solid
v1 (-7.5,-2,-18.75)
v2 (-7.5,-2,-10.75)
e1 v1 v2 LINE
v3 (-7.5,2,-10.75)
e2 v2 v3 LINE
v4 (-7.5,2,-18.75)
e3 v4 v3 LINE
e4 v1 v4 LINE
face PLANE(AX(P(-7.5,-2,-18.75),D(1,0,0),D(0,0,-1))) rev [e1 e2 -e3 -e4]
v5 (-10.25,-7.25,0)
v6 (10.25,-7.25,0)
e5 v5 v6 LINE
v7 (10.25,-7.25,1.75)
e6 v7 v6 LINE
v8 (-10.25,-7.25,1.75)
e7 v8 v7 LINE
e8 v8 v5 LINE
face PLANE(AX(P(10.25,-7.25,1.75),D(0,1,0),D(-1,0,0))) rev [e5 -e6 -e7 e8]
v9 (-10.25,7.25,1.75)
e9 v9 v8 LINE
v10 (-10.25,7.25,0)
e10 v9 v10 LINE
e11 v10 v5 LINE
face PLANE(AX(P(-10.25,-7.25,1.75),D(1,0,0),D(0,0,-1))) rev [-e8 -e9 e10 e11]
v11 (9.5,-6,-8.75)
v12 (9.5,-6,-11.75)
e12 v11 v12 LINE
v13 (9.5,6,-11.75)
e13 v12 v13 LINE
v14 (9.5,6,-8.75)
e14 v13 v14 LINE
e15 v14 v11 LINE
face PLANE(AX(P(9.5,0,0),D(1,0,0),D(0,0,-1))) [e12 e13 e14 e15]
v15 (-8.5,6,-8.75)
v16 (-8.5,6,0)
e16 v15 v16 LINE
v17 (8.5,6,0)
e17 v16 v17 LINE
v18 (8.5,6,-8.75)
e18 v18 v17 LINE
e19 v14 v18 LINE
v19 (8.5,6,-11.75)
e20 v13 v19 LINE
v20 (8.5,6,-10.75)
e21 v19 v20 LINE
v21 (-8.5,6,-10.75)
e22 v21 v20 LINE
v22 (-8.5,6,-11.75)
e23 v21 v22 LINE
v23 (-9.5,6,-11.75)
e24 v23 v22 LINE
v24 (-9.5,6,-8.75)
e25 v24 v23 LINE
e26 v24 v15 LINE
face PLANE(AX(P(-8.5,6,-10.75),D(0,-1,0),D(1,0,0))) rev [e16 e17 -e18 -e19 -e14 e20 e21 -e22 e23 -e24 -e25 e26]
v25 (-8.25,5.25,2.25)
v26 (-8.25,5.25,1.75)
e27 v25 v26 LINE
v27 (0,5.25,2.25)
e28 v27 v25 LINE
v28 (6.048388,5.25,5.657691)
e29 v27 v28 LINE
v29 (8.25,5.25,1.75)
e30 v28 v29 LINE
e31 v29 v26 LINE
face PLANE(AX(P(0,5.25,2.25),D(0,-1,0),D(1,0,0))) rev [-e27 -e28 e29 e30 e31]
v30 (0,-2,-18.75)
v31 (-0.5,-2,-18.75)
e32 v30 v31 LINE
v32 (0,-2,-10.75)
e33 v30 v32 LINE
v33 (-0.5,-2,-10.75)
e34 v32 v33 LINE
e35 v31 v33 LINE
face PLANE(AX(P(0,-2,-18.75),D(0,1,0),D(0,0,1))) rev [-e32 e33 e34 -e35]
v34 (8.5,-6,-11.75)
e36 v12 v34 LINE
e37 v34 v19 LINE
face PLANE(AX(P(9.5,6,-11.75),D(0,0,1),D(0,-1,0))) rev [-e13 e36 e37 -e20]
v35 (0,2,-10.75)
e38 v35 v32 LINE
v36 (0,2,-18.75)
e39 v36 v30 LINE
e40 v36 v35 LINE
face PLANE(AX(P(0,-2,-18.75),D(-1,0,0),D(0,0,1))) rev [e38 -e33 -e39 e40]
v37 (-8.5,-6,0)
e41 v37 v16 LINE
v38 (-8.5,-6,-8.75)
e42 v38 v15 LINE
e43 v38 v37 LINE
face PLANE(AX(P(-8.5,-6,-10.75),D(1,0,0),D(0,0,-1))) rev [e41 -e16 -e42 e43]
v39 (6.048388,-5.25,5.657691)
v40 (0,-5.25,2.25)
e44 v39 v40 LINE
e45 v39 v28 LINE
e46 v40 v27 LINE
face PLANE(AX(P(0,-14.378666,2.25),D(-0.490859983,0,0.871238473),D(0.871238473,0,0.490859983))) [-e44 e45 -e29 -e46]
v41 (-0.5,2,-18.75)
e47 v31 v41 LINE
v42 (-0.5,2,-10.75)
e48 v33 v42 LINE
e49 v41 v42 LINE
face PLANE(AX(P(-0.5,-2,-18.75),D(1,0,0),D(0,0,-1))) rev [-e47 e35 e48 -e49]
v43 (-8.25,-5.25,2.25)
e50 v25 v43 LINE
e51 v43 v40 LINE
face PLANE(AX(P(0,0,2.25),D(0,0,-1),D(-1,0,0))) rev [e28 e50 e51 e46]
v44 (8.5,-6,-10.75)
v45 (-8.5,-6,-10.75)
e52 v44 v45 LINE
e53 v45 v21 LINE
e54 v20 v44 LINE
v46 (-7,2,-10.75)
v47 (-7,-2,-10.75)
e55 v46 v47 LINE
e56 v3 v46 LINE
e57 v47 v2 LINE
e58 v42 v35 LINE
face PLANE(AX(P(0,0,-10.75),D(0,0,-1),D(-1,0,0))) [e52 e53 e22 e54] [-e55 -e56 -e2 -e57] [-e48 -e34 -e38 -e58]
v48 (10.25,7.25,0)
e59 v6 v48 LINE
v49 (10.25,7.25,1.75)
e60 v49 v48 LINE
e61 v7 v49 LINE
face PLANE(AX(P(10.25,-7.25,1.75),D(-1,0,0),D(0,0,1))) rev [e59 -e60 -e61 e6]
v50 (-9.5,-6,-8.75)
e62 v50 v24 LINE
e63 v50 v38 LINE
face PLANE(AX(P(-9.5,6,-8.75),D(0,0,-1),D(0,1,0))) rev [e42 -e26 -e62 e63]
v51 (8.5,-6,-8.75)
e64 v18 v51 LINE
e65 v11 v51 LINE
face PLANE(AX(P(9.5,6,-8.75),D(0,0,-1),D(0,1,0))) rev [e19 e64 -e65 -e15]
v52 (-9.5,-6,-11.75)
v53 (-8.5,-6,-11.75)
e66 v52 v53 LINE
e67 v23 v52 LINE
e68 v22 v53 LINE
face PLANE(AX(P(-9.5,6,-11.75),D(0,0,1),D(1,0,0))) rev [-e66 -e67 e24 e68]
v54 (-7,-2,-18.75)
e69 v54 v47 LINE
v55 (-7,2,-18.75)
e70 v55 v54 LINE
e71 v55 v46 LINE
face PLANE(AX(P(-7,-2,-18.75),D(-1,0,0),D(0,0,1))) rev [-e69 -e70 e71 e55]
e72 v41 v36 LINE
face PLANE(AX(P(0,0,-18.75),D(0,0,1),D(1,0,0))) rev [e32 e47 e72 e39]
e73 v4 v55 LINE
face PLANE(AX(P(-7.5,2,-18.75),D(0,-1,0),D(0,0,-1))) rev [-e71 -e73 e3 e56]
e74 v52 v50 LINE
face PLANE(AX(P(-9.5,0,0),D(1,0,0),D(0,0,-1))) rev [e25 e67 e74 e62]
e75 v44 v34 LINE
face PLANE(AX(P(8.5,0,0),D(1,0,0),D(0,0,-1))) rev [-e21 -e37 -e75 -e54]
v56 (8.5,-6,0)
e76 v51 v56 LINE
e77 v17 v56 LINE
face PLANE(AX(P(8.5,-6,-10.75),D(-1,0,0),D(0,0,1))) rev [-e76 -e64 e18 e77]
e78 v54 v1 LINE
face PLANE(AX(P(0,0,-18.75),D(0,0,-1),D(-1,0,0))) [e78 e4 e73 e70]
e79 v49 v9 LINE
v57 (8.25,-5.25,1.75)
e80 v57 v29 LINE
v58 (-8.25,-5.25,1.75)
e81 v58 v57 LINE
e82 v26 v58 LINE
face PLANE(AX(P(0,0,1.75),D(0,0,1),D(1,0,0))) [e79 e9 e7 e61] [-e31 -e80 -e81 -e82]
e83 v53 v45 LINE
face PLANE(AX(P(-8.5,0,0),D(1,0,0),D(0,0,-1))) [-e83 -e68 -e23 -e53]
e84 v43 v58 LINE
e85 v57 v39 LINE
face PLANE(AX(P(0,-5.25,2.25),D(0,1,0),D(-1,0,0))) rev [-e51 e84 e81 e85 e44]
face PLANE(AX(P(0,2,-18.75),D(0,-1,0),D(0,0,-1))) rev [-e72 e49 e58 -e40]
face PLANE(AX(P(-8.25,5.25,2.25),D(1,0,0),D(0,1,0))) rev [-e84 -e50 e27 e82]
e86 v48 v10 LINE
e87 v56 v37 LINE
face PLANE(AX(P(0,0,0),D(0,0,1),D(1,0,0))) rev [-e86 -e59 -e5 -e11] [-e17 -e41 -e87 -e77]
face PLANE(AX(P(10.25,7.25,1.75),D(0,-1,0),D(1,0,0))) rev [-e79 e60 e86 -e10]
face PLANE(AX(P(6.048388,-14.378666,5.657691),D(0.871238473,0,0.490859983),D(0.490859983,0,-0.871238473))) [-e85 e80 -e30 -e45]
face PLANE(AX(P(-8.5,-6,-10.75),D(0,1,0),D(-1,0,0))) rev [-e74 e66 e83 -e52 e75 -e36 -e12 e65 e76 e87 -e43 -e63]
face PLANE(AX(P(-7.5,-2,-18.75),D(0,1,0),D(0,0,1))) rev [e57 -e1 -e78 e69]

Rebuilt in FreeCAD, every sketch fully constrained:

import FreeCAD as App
import Part
import Sketcher

V = App.Vector
Q = App.Units.Quantity


def add_polygon(sketch, points):
    """Adds a closed chain of lines whose ends are joined by coincident constraints."""
    first, n = sketch.GeometryCount, len(points)
    for a, b in zip(points, points[1:] + points[:1]):
        sketch.addGeometry(Part.LineSegment(App.Vector(*a, 0), App.Vector(*b, 0)), False)
    for i in range(n):
        sketch.addConstraint(Sketcher.Constraint("Coincident", first + i, 2, first + (i + 1) % n, 1))

doc = App.newDocument("Part")
body = doc.addObject("PartDesign::Body", "Body")

# Sketch on XY plane
sketch1 = body.newObject("Sketcher::SketchObject", "Sketch")
sketch1.AttachmentSupport = (doc.getObject("XY_Plane"), [""])
sketch1.MapMode = "FlatFace"
add_polygon(sketch1, [(-10, 7), (-10, -7), (10, -7), (10, 7)])  # lines 0-3
sketch1.addConstraint([
    Sketcher.Constraint("Vertical", 0),
    Sketcher.Constraint("Horizontal", 1),
    Sketcher.Constraint("Vertical", 2),
    Sketcher.Constraint("Horizontal", 3),
    Sketcher.Constraint("Symmetric", 0, 2, 2, 2, -1, 1),
    Sketcher.Constraint("DistanceX", 1, 1, 1, 2, Q("20.5 mm")),
    Sketcher.Constraint("DistanceY", 0, 2, 0, 1, Q("14.5 mm")),
])
pad1 = body.newObject("PartDesign::Pad", "Pad")
pad1.Profile = sketch1
pad1.Length = 1.75

# Sketch on XY plane
sketch2 = body.newObject("Sketcher::SketchObject", "Sketch001")
sketch2.AttachmentSupport = (doc.getObject("XY_Plane"), [""])
sketch2.MapMode = "FlatFace"
add_polygon(sketch2, [(8, 6), (8, -6), (-8, -6), (-8, 6)])  # lines 0-3
sketch2.addConstraint([
    Sketcher.Constraint("Vertical", 0),
    Sketcher.Constraint("Horizontal", 1),
    Sketcher.Constraint("Vertical", 2),
    Sketcher.Constraint("Horizontal", 3),
    Sketcher.Constraint("Symmetric", 0, 2, 2, 2, -1, 1),
    Sketcher.Constraint("DistanceX", 1, 2, 1, 1, Q("17 mm")),
    Sketcher.Constraint("DistanceY", 0, 2, 0, 1, Q("12 mm")),
])
pad2 = body.newObject("PartDesign::Pad", "Pad001")
pad2.Profile = sketch2
pad2.Length = 10.75
pad2.Reversed = True

# Sketch on YZ plane
sketch3 = body.newObject("Sketcher::SketchObject", "Sketch002")
sketch3.AttachmentSupport = (doc.getObject("YZ_Plane"), [""])
sketch3.MapMode = "FlatFace"
sketch3.AttachmentOffset = App.Placement(V(0, 0, 8.5), App.Rotation())
add_polygon(sketch3, [(6, -8.8), (-6, -8.8), (-6, -11.8), (6, -11.8)])  # lines 0-3
sketch3.addConstraint([
    Sketcher.Constraint("Horizontal", 0),
    Sketcher.Constraint("Vertical", 1),
    Sketcher.Constraint("Horizontal", 2),
    Sketcher.Constraint("Vertical", 3),
    Sketcher.Constraint("DistanceX", 0, 2, 0, 1, Q("12 mm")),
    Sketcher.Constraint("DistanceY", 1, 2, 1, 1, Q("3 mm")),
    Sketcher.Constraint("DistanceX", 0, 2, -1, 1, Q("6 mm")),
    Sketcher.Constraint("DistanceY", 0, 2, -1, 1, Q("8.75 mm")),
])
pad3 = body.newObject("PartDesign::Pad", "Pad002")
pad3.Profile = sketch3
pad3.Length = 1

# Sketch on YZ plane
sketch4 = body.newObject("Sketcher::SketchObject", "Sketch003")
sketch4.AttachmentSupport = (doc.getObject("YZ_Plane"), [""])
sketch4.MapMode = "FlatFace"
sketch4.AttachmentOffset = App.Placement(V(0, 0, -8.5), App.Rotation())
add_polygon(sketch4, [(6, -11.8), (-6, -11.8), (-6, -8.8), (6, -8.8)])  # lines 0-3
sketch4.addConstraint([
    Sketcher.Constraint("Horizontal", 0),
    Sketcher.Constraint("Vertical", 1),
    Sketcher.Constraint("Horizontal", 2),
    Sketcher.Constraint("Vertical", 3),
    Sketcher.Constraint("DistanceX", 0, 2, 0, 1, Q("12 mm")),
    Sketcher.Constraint("DistanceY", 1, 1, 1, 2, Q("3 mm")),
    Sketcher.Constraint("DistanceX", 0, 2, -1, 1, Q("6 mm")),
    Sketcher.Constraint("DistanceY", 0, 2, -1, 1, Q("11.75 mm")),
])
pad4 = body.newObject("PartDesign::Pad", "Pad003")
pad4.Profile = sketch4
pad4.Length = 1
pad4.Reversed = True

# Sketch on XY plane
sketch5 = body.newObject("Sketcher::SketchObject", "Sketch004")
sketch5.AttachmentSupport = (doc.getObject("XY_Plane"), [""])
sketch5.MapMode = "FlatFace"
sketch5.AttachmentOffset = App.Placement(V(0, 0, 1.75), App.Rotation())
add_polygon(sketch5, [(-8, 5), (-8, -5), (0, -5), (0, 5)])  # lines 0-3
sketch5.addConstraint([
    Sketcher.Constraint("Vertical", 0),
    Sketcher.Constraint("Horizontal", 1),
    Sketcher.Constraint("Vertical", 2),
    Sketcher.Constraint("Horizontal", 3),
    Sketcher.Constraint("Symmetric", 1, 2, 2, 2, -1, 1),
    Sketcher.Constraint("DistanceY", 0, 2, 0, 1, Q("10.5 mm")),
    Sketcher.Constraint("DistanceX", 1, 1, 1, 2, Q("8.25 mm")),
])
pad5 = body.newObject("PartDesign::Pad", "Pad004")
pad5.Profile = sketch5
pad5.Length = 0.5

# Sketch on XZ plane
sketch6 = body.newObject("Sketcher::SketchObject", "Sketch005")
sketch6.AttachmentSupport = (doc.getObject("XZ_Plane"), [""])
sketch6.MapMode = "FlatFace"
sketch6.AttachmentOffset = App.Placement(V(0, 0, -5.25), App.Rotation())
add_polygon(sketch6, [(0, 2.2), (6, 5.7), (8.2, 1.8), (0, 1.8)])  # lines 0-3
sketch6.addConstraint([
    Sketcher.Constraint("Horizontal", 2),
    Sketcher.Constraint("Vertical", 3),
    Sketcher.Constraint("PointOnObject", 2, 2, -2),
    Sketcher.Constraint("Perpendicular", 0, 1),
    Sketcher.Constraint("DistanceY", 3, 1, 3, 2, Q("0.5 mm")),
    Sketcher.Constraint("DistanceX", 2, 2, 2, 1, Q("8.25 mm")),
    Sketcher.Constraint("DistanceY", -1, 1, 1, 2, Q("1.75 mm")),
    Sketcher.Constraint("DistanceY", -1, 1, 0, 2, Q("5.657691 mm")),
])
pad6 = body.newObject("PartDesign::Pad", "Pad005")
pad6.Profile = sketch6
pad6.Length = 10.5

# Sketch on XY plane
sketch7 = body.newObject("Sketcher::SketchObject", "Sketch006")
sketch7.AttachmentSupport = (doc.getObject("XY_Plane"), [""])
sketch7.MapMode = "FlatFace"
sketch7.AttachmentOffset = App.Placement(V(0, 0, -10.75), App.Rotation())
add_polygon(sketch7, [(-7, 2), (-7, -2), (-7.5, -2), (-7.5, 2)])  # lines 0-3
add_polygon(sketch7, [(0, 2), (0, -2), (-0.5, -2), (-0.5, 2)])  # lines 4-7
sketch7.addConstraint([
    Sketcher.Constraint("Vertical", 0),
    Sketcher.Constraint("Horizontal", 1),
    Sketcher.Constraint("Vertical", 2),
    Sketcher.Constraint("Horizontal", 3),
    Sketcher.Constraint("Vertical", 4),
    Sketcher.Constraint("Horizontal", 5),
    Sketcher.Constraint("Vertical", 6),
    Sketcher.Constraint("Horizontal", 7),
    Sketcher.Constraint("Symmetric", 4, 2, 7, 2, -1, 1),
    Sketcher.Constraint("Horizontal", 1, 2, 4, 2),
    Sketcher.Constraint("Horizontal", 3, 2, 6, 2),
    Sketcher.Constraint("Equal", 3, 5),
    Sketcher.Constraint("DistanceY", 0, 2, 0, 1, Q("4 mm")),
    Sketcher.Constraint("DistanceX", 1, 2, 1, 1, Q("0.5 mm")),
    Sketcher.Constraint("DistanceX", 0, 2, -1, 1, Q("7 mm")),
])
pad7 = body.newObject("PartDesign::Pad", "Pad006")
pad7.Profile = sketch7
pad7.Length = 8
pad7.Reversed = True

doc.recompute()
